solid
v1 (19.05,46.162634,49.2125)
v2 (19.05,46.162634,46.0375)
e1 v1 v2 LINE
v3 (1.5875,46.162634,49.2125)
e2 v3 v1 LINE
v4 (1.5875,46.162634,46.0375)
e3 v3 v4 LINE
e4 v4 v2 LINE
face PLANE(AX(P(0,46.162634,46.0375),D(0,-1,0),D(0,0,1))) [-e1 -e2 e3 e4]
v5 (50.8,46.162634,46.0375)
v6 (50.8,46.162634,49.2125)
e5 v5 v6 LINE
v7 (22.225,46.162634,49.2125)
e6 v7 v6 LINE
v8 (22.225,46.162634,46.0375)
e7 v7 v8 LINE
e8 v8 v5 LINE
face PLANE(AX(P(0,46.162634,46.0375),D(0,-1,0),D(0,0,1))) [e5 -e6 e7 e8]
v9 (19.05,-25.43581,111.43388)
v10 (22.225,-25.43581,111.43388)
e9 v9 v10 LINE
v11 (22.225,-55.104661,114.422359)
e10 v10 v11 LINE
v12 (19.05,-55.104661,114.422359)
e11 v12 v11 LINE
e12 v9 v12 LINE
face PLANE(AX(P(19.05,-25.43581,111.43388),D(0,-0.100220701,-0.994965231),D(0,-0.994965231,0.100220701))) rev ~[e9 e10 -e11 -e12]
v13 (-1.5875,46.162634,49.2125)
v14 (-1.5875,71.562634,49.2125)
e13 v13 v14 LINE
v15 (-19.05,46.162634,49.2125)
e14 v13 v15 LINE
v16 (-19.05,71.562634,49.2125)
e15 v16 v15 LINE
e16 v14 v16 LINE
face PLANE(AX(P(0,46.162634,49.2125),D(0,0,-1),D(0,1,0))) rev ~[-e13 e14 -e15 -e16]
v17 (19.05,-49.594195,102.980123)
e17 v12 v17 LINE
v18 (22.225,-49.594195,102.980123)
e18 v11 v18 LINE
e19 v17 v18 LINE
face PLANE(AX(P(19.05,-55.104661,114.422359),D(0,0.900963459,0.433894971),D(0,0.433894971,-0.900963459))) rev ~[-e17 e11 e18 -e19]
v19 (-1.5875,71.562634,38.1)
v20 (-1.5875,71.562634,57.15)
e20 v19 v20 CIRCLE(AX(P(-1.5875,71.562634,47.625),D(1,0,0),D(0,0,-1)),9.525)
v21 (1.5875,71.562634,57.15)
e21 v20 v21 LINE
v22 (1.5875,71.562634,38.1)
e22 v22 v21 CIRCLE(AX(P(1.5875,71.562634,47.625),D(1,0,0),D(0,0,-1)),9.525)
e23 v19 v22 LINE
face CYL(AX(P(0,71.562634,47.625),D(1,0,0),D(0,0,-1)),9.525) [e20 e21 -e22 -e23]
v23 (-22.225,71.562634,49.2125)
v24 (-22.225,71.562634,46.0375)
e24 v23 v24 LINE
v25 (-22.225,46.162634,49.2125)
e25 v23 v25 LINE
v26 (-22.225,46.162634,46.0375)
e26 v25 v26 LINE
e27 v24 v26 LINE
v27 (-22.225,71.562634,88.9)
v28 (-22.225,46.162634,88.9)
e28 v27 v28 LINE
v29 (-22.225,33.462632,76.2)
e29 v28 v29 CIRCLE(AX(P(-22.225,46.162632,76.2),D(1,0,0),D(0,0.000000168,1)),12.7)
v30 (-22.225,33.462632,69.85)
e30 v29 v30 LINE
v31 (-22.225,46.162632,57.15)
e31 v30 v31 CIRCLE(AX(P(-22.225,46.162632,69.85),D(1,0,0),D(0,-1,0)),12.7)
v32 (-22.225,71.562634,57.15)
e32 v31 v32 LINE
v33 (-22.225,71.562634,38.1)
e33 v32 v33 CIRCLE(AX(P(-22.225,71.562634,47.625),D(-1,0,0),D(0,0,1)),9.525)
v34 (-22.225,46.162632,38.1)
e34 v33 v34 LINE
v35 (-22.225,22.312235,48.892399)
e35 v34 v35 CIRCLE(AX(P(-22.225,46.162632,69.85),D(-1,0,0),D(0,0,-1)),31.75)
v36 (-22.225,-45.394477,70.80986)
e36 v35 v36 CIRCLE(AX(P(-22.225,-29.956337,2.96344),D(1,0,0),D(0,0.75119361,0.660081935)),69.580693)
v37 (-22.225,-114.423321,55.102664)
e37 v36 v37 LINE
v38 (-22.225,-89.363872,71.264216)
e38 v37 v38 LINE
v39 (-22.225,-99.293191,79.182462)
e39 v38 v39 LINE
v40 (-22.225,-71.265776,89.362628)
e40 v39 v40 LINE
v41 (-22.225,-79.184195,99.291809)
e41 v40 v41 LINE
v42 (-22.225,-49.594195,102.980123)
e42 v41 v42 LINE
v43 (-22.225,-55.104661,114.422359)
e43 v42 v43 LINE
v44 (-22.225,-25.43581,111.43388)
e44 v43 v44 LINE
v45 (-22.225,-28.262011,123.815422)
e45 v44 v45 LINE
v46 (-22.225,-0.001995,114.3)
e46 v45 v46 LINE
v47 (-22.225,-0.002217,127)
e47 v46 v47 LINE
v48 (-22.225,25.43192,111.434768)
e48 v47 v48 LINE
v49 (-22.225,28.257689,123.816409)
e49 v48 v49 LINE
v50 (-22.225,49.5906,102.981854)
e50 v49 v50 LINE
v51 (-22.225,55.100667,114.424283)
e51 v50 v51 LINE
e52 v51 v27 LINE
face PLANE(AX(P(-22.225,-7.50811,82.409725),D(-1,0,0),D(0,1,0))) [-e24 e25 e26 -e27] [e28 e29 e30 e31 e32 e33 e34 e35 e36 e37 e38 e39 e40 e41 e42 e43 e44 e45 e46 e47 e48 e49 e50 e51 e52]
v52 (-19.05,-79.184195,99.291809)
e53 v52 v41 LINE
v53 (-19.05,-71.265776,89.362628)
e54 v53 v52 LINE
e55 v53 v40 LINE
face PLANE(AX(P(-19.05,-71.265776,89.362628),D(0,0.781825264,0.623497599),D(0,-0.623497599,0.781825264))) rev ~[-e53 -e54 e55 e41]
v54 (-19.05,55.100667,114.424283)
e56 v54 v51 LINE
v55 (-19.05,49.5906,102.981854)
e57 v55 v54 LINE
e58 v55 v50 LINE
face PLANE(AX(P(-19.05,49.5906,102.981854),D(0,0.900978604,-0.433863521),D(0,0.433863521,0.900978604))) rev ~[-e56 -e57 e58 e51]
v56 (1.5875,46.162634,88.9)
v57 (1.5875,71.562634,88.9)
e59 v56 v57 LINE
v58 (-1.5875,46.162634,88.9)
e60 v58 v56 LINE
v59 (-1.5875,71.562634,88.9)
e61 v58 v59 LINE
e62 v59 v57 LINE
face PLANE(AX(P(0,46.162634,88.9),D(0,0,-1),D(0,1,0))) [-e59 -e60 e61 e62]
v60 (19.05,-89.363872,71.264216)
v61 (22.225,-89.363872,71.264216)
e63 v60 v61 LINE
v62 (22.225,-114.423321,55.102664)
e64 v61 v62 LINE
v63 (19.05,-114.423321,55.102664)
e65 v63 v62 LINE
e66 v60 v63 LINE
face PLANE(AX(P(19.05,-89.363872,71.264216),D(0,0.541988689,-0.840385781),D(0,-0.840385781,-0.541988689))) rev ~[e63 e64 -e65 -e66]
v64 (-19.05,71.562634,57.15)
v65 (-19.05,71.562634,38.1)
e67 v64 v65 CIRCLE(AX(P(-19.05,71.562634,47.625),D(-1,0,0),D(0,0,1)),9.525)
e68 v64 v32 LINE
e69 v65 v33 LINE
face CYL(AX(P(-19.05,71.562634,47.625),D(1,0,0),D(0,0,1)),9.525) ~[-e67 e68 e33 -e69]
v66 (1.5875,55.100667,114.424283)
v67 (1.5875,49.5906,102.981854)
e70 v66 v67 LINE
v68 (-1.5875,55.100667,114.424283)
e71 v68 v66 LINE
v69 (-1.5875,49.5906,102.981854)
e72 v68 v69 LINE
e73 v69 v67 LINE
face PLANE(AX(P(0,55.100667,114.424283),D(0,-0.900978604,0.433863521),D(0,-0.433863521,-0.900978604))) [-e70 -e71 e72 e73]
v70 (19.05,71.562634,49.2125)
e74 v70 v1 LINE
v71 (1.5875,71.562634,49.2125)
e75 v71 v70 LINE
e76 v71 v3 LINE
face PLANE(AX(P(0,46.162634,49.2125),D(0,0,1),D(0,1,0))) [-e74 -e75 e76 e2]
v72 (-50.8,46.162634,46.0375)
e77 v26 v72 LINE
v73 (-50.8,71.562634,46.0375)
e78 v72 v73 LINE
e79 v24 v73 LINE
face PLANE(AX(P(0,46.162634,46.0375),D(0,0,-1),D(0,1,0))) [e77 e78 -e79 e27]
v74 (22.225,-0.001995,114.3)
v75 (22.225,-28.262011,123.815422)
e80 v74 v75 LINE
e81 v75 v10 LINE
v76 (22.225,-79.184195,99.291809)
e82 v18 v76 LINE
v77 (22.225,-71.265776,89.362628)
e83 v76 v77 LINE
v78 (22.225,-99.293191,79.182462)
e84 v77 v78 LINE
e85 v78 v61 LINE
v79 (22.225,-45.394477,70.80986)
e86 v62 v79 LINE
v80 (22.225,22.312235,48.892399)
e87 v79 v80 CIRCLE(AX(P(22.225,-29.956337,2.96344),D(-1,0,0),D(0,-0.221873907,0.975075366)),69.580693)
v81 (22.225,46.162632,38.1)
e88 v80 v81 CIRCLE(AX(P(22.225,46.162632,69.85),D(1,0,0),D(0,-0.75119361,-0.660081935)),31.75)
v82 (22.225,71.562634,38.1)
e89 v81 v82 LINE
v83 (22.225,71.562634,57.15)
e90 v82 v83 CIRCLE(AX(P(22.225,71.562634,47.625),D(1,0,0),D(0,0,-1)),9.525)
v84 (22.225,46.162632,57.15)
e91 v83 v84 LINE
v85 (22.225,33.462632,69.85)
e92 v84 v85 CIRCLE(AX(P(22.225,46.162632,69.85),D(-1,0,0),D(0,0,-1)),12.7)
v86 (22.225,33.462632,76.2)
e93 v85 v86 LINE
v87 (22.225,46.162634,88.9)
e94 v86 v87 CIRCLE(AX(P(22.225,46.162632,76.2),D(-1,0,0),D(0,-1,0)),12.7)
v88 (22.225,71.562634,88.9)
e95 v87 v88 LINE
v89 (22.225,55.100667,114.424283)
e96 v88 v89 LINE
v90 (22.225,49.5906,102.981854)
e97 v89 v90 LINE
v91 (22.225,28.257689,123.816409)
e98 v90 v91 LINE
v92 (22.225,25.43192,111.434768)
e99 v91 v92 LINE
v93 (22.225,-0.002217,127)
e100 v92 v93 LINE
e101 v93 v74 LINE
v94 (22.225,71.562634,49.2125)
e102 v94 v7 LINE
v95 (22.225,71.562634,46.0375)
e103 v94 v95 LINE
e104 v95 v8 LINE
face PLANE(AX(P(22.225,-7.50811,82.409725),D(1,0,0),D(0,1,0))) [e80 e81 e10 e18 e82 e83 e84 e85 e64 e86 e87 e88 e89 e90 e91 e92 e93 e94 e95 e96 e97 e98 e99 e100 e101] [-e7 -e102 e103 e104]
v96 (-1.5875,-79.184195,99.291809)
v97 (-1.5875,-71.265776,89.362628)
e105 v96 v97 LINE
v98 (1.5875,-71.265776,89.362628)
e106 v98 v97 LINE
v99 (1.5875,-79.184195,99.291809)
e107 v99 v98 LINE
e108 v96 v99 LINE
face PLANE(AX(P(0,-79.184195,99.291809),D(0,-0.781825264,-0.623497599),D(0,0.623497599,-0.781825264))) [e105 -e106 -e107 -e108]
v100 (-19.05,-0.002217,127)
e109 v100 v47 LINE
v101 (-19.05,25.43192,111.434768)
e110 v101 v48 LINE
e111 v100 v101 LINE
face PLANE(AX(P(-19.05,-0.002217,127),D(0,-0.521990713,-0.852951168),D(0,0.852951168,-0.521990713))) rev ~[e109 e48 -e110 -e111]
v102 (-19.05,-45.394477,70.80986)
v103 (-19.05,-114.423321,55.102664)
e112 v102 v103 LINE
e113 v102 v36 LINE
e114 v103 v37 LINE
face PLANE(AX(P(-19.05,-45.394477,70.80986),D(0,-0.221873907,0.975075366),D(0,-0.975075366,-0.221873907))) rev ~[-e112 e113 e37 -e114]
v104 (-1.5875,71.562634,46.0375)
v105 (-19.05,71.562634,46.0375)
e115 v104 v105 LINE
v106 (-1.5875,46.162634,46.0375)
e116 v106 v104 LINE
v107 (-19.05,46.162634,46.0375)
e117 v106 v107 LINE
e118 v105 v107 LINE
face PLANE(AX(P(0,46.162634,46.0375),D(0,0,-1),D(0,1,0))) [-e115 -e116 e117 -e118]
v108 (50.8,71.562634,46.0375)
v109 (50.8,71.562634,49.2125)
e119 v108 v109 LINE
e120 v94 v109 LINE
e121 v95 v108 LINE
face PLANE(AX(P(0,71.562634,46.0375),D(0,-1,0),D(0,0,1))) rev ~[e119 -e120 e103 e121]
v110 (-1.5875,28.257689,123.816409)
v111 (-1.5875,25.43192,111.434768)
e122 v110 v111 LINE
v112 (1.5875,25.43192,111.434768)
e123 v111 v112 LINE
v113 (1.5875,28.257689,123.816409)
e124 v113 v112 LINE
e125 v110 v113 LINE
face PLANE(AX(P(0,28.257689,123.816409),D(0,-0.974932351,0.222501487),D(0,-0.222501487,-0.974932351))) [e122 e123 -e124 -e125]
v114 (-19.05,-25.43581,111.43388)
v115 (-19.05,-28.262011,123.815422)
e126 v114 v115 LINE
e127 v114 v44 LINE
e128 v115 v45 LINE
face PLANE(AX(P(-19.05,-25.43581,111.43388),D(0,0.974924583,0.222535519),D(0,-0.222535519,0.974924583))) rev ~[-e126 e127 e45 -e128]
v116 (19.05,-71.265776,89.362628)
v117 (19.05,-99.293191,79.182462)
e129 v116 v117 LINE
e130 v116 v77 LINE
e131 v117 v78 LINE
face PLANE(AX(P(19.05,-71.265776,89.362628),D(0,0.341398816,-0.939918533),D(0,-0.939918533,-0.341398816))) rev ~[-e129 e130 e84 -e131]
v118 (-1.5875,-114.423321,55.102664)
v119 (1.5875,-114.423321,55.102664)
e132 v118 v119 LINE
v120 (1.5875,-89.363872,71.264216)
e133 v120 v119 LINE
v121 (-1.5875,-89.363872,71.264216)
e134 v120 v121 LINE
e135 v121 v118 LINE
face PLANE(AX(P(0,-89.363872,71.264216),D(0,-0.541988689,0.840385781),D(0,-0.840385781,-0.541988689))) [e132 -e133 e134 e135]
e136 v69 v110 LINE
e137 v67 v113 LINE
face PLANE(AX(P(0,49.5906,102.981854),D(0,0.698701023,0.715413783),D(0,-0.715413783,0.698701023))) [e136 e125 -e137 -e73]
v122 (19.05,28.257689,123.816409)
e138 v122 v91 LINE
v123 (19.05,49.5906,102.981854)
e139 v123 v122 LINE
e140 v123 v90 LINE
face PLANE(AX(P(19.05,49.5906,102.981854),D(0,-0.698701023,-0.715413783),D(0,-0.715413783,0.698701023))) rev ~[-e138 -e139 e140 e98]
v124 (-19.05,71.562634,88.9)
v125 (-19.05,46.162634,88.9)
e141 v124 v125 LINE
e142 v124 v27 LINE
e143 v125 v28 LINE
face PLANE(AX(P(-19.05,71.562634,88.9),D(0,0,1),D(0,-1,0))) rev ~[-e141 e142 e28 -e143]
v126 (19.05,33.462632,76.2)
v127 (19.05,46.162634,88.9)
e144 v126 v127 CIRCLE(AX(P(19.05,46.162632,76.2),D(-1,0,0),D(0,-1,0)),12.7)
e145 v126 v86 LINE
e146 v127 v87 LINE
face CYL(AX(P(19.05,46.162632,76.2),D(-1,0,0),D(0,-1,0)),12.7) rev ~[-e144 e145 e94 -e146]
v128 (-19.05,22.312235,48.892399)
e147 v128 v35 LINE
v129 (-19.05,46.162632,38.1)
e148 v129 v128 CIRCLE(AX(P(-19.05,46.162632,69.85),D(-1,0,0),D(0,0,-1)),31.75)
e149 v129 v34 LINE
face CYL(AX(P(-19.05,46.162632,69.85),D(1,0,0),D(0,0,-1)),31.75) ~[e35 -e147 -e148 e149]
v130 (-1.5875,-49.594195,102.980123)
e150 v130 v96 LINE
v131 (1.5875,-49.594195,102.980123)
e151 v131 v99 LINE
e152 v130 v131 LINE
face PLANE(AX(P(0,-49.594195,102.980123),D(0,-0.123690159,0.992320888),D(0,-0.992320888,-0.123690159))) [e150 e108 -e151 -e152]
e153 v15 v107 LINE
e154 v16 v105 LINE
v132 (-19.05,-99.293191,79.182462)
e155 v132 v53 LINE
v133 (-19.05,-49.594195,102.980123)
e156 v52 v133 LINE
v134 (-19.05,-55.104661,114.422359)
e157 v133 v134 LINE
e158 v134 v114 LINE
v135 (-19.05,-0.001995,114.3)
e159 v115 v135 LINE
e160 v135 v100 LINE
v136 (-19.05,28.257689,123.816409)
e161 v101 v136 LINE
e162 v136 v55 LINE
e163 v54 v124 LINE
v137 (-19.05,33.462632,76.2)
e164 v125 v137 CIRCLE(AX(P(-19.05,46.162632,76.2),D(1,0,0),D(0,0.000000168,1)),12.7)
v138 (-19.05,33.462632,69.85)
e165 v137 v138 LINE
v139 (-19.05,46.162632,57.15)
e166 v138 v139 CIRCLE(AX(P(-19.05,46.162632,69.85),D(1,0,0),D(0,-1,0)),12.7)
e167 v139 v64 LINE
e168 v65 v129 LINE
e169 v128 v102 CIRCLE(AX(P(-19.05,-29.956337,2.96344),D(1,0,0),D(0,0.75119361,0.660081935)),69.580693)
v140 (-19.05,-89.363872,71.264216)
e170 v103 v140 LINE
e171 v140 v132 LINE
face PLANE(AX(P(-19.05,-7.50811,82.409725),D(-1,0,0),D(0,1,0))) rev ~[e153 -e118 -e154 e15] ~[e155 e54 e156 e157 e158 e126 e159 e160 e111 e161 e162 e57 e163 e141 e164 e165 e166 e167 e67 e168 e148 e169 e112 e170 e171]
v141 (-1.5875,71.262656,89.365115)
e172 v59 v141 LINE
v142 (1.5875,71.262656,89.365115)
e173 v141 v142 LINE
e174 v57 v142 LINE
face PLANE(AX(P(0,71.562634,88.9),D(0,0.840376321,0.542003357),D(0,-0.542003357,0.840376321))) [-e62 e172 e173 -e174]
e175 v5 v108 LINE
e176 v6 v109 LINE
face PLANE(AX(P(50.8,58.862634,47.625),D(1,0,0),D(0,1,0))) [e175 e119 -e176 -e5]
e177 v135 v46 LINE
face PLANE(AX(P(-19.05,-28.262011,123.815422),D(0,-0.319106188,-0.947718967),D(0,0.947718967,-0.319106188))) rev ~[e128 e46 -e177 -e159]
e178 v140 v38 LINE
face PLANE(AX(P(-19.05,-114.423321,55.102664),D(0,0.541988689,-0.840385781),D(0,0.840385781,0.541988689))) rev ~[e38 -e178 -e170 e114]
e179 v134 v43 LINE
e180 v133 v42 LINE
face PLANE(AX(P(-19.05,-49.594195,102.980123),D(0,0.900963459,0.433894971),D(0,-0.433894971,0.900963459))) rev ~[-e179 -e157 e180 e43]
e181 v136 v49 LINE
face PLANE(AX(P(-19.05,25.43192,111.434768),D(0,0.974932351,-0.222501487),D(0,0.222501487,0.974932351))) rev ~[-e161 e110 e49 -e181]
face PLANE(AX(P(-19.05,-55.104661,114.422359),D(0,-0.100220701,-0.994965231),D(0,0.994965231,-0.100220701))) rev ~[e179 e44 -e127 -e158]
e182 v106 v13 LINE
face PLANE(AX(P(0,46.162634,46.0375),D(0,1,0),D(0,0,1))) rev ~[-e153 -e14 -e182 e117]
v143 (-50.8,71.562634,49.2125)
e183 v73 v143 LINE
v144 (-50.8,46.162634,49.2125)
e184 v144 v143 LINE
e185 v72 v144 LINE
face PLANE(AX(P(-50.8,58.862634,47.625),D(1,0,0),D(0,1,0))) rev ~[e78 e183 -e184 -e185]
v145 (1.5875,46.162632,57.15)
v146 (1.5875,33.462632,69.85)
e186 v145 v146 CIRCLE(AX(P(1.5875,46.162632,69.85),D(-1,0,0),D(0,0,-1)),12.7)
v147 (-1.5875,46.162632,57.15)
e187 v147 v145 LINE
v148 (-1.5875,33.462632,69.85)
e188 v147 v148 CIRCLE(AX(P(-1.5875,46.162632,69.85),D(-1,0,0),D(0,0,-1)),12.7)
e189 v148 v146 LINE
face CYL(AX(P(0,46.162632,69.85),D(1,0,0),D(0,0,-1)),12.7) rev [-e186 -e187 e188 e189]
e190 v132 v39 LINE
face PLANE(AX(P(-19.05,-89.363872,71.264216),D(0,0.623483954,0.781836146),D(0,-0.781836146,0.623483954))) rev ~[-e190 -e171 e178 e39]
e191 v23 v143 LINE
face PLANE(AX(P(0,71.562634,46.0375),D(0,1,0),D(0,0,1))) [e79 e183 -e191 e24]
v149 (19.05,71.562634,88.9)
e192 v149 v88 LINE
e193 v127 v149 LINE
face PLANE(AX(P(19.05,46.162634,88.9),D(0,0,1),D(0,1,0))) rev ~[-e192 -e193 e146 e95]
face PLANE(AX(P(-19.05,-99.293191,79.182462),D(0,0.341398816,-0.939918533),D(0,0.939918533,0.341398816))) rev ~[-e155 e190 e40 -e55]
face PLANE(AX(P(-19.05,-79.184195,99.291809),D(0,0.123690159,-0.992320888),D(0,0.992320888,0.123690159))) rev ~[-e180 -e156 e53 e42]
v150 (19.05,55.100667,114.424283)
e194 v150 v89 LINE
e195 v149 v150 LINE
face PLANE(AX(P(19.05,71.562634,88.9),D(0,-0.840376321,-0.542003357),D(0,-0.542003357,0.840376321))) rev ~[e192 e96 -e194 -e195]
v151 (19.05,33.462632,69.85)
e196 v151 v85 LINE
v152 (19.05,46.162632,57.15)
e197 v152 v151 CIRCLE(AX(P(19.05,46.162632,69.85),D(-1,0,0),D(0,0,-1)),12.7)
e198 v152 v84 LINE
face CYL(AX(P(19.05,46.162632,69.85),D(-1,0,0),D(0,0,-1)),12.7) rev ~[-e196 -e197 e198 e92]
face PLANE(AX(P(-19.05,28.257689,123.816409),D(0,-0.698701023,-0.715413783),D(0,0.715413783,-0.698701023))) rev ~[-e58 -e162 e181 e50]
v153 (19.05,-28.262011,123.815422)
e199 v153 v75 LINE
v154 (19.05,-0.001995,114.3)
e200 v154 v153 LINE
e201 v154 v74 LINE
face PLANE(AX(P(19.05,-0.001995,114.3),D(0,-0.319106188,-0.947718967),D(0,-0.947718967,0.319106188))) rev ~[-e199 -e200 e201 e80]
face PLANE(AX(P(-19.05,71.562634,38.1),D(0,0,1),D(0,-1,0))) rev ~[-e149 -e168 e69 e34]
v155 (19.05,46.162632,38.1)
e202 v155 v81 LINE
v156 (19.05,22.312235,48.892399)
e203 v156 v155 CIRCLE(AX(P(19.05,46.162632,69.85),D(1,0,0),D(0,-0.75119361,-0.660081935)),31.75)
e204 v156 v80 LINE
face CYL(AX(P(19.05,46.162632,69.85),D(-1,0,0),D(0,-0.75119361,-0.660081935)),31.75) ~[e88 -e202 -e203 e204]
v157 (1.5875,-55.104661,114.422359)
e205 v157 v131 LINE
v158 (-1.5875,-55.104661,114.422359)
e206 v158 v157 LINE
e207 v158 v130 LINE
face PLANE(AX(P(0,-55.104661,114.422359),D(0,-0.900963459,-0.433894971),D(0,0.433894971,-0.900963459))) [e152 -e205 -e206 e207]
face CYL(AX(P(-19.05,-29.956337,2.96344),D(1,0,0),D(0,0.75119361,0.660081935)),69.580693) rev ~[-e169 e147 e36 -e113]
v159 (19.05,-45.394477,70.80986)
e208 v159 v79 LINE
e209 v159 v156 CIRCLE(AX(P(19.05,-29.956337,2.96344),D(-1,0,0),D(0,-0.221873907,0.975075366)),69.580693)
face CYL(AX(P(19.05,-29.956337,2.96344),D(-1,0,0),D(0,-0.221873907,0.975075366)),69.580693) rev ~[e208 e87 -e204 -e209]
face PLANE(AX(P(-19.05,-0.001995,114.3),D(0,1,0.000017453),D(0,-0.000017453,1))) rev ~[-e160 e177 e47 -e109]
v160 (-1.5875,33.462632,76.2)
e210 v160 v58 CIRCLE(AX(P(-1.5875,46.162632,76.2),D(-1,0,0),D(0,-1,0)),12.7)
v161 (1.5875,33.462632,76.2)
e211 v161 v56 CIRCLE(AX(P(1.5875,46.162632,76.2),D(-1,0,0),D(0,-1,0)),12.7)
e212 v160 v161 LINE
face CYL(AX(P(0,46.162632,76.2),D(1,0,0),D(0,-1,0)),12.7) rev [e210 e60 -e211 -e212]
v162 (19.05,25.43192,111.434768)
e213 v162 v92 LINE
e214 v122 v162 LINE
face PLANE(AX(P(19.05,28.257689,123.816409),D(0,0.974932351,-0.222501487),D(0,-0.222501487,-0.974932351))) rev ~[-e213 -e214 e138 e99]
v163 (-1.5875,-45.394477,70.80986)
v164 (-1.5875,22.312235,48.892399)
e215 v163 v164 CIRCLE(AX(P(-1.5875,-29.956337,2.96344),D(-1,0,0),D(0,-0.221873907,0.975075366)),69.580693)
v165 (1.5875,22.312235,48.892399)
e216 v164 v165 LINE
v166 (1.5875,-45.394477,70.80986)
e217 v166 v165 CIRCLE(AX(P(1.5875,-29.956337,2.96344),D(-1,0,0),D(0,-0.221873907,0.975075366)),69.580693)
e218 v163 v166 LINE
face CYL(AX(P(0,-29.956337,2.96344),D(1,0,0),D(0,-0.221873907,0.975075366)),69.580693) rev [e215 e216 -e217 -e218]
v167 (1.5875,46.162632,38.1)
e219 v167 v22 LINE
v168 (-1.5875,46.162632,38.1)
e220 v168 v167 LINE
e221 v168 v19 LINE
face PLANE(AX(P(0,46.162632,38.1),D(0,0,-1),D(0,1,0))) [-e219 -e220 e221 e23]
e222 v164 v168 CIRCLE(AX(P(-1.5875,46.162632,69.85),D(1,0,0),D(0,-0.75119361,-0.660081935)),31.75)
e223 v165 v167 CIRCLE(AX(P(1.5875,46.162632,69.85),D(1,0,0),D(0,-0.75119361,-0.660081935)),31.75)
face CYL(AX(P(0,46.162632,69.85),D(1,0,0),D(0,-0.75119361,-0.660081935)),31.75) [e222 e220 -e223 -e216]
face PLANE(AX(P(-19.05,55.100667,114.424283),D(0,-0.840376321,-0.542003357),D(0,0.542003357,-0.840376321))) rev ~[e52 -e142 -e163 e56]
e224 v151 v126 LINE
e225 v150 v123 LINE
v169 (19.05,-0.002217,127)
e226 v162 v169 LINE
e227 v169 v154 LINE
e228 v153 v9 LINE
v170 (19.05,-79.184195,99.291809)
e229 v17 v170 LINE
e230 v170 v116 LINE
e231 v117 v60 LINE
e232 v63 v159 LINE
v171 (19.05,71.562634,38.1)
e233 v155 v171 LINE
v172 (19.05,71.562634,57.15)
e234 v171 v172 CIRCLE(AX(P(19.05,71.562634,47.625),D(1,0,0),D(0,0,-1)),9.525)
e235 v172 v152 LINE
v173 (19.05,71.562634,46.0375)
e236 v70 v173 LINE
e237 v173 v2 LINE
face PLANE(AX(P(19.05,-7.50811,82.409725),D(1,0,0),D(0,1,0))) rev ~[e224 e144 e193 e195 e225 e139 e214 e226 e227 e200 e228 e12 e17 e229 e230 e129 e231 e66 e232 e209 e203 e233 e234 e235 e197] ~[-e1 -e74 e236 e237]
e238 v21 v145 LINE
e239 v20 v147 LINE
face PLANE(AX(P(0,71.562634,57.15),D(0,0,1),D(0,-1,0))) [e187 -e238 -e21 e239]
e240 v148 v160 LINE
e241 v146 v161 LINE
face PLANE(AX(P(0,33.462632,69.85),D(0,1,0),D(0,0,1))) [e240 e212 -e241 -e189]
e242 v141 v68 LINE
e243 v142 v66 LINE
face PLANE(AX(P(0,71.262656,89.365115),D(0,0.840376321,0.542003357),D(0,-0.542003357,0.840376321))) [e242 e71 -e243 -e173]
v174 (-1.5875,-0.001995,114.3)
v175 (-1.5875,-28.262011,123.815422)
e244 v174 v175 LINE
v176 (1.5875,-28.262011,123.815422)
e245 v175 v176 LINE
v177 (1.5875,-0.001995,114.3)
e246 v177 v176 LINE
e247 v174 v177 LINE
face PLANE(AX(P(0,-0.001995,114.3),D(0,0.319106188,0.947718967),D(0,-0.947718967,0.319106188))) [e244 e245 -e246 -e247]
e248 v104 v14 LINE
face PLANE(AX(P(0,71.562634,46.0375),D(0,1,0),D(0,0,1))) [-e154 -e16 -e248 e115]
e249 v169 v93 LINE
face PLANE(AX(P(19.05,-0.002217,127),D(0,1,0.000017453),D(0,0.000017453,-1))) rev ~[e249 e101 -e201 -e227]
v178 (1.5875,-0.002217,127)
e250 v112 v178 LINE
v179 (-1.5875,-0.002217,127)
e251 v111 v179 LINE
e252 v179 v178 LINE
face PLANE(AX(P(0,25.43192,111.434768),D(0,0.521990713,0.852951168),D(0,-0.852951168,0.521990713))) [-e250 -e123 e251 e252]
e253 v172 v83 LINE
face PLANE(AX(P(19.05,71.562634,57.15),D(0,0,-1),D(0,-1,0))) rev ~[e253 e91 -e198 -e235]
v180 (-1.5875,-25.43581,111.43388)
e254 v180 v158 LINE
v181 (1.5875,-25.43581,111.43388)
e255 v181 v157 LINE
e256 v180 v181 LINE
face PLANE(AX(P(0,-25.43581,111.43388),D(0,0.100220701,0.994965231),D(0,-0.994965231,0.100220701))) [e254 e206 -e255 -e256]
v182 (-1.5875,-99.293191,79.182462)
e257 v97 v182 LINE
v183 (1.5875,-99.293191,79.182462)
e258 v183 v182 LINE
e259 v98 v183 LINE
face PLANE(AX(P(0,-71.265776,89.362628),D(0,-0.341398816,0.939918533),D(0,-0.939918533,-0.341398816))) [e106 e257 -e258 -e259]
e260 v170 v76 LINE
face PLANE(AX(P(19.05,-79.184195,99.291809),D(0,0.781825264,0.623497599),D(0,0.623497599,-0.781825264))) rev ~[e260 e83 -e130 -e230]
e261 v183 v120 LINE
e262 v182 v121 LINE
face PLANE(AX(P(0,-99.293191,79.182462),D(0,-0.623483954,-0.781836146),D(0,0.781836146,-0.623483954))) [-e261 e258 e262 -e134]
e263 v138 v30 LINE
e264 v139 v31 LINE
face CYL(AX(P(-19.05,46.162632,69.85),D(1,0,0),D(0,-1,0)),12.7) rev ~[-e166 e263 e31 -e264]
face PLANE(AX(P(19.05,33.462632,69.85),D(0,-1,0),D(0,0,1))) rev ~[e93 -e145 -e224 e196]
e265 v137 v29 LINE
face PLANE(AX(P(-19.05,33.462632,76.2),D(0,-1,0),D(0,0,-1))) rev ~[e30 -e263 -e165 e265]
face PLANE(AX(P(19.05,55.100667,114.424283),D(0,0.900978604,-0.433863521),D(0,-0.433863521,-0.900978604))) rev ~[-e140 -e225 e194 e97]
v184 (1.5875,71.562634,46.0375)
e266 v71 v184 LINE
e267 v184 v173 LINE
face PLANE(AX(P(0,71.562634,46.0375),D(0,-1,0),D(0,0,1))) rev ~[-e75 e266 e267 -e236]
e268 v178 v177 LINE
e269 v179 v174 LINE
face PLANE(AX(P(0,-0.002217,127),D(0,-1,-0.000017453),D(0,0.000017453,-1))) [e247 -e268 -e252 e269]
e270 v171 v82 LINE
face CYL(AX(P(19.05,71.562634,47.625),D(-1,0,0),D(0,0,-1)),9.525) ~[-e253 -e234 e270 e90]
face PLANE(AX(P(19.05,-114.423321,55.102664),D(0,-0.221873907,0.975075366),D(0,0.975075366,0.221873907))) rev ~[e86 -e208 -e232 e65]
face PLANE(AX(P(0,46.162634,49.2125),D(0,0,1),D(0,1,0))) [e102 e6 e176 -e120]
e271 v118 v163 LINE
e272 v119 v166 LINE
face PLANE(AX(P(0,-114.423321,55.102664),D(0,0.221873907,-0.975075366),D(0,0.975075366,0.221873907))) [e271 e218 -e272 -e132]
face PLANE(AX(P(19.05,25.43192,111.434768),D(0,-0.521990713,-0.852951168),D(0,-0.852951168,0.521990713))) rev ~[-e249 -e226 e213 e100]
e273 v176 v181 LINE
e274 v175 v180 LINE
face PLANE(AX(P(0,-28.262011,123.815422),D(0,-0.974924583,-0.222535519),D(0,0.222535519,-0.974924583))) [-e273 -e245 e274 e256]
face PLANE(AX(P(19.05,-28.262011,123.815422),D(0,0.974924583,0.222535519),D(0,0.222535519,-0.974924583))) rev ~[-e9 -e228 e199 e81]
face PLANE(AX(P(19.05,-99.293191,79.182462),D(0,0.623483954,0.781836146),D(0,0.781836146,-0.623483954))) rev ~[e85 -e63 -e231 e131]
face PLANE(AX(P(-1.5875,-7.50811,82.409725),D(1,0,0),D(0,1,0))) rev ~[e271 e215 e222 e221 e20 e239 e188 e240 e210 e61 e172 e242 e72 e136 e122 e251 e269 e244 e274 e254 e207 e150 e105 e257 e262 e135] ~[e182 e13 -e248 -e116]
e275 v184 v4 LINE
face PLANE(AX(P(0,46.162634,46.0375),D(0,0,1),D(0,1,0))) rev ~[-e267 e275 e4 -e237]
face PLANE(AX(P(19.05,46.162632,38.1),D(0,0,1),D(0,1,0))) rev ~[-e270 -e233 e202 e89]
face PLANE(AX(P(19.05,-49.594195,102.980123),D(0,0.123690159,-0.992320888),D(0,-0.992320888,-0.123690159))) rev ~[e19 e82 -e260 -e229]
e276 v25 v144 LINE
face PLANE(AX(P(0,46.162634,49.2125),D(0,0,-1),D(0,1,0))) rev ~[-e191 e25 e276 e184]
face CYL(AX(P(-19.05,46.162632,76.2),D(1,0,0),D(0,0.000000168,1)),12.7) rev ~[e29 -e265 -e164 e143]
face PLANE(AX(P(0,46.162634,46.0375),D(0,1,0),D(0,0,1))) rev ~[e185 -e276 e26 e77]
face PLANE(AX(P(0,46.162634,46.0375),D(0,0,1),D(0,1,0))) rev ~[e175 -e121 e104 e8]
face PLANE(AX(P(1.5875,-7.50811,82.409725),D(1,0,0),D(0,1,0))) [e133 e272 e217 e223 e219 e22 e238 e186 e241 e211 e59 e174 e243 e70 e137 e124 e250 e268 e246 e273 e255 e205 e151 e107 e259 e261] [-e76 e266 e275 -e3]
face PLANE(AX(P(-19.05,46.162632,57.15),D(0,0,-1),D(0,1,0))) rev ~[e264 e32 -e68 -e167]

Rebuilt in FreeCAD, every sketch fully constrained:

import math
import FreeCAD as App
import Part
import Sketcher
Q = App.Units.Quantity


def add_polygon(sketch, points):
    """Adds a closed chain of lines whose ends are joined by coincident constraints."""
    first, n = sketch.GeometryCount, len(points)
    for a, b in zip(points, points[1:] + points[:1]):
        sketch.addGeometry(Part.LineSegment(App.Vector(*a, 0), App.Vector(*b, 0)), False)
    for i in range(n):
        sketch.addConstraint(Sketcher.Constraint("Coincident", first + i, 2, first + (i + 1) % n, 1))

doc = App.newDocument("Part")
params = doc.addObject("Spreadsheet::Sheet", "Params")
for row, (alias, value) in enumerate([
    ("sketch1_radius", "0.5 in"),
    ("sketch1_width", "1.0000001 in"),
    ("sketch1_radius2", "1.25 in"),
    ("sketch1_length", "0.5 in"),
    ("sketch1_height", "0.25 in"),
    ("pad1_length", "0.0625 in"),
    ("pad1_length2", "0.0625 in"),
    ("sketch2_radius", "0.5 in"),
    ("sketch2_width", "1.0000001 in"),
    ("sketch2_radius2", "1.25 in"),
    ("sketch2_length", "0.5 in"),
    ("sketch2_height", "0.25 in"),
    ("pad2_length", "0.125 in"),
    ("sketch3_radius", "0.5 in"),
    ("sketch3_radius2", "0.5 in"),
    ("sketch3_width", "1 in"),
    ("sketch3_width2", "1.0000001 in"),
    ("sketch3_width3", "1.0000001 in"),
    ("pad3_length", "0.125 in"),
    ("sketch4_width", "1 in"),
    ("sketch4_height", "0.125 in"),
    ("pad4_length", "2 in"),
    ("pad4_length2", "2 in"),
], start=1):
    params.set(f"A{row}", alias)
    params.set(f"B{row}", "=" + value)
    params.setAlias(f"B{row}", alias)

body = doc.addObject("PartDesign::Body", "Body")

# Sketch on YZ plane
sketch1 = doc.addObject("Sketcher::SketchObject", "Sketch")
body.addObject(sketch1)
sketch1.AttachmentSupport = (doc.YZ_Plane, [""])
sketch1.MapMode = "FlatFace"
sketch1.addGeometry([
    Part.LineSegment(App.Vector(-89.4, 71.3, 0), App.Vector(-114.4, 55.1, 0)),  # 0
    Part.LineSegment(App.Vector(-114.4, 55.1, 0), App.Vector(-45.4, 70.8, 0)),  # 1
    Part.ArcOfCircle(Part.Circle(App.Vector(-30, 3, 0), App.Vector(0, 0, 1), 69.6), math.radians(41), math.radians(103)),  # 2
    Part.ArcOfCircle(Part.Circle(App.Vector(46.2, 69.8, 0), App.Vector(0, 0, 1), 31.8), math.radians(-139), math.radians(-90)),  # 3
    Part.LineSegment(App.Vector(46.2, 38.1, 0), App.Vector(71.6, 38.1, 0)),  # 4
    Part.ArcOfCircle(Part.Circle(App.Vector(71.6, 47.6, 0), App.Vector(0, 0, 1), 9.5), math.radians(-90), math.radians(90)),  # 5
    Part.LineSegment(App.Vector(71.6, 57.1, 0), App.Vector(46.2, 57.1, 0)),  # 6
    Part.ArcOfCircle(Part.Circle(App.Vector(46.2, 69.8, 0), App.Vector(0, 0, 1), 12.7), math.radians(180), math.radians(270)),  # 7
    Part.LineSegment(App.Vector(33.5, 69.8, 0), App.Vector(33.5, 76.2, 0)),  # 8
    Part.ArcOfCircle(Part.Circle(App.Vector(46.2, 76.2, 0), App.Vector(0, 0, 1), 12.7), math.radians(90), math.radians(180)),  # 9
    Part.LineSegment(App.Vector(46.2, 88.9, 0), App.Vector(71.6, 88.9, 0)),  # 10
    Part.LineSegment(App.Vector(71.6, 88.9, 0), App.Vector(71.3, 89.4, 0)),  # 11
    Part.LineSegment(App.Vector(71.3, 89.4, 0), App.Vector(55.1, 114.4, 0)),  # 12
    Part.LineSegment(App.Vector(55.1, 114.4, 0), App.Vector(49.6, 103, 0)),  # 13
    Part.LineSegment(App.Vector(49.6, 103, 0), App.Vector(28.3, 123.8, 0)),  # 14
    Part.LineSegment(App.Vector(28.3, 123.8, 0), App.Vector(25.4, 111.4, 0)),  # 15
    Part.LineSegment(App.Vector(25.4, 111.4, 0), App.Vector(0, 127, 0)),  # 16
    Part.LineSegment(App.Vector(0, 127, 0), App.Vector(0, 114.3, 0)),  # 17
    Part.LineSegment(App.Vector(0, 114.3, 0), App.Vector(-28.3, 123.8, 0)),  # 18
    Part.LineSegment(App.Vector(-28.3, 123.8, 0), App.Vector(-25.4, 111.4, 0)),  # 19
    Part.LineSegment(App.Vector(-25.4, 111.4, 0), App.Vector(-55.1, 114.4, 0)),  # 20
    Part.LineSegment(App.Vector(-55.1, 114.4, 0), App.Vector(-49.6, 103, 0)),  # 21
    Part.LineSegment(App.Vector(-49.6, 103, 0), App.Vector(-79.2, 99.3, 0)),  # 22
    Part.LineSegment(App.Vector(-79.2, 99.3, 0), App.Vector(-71.3, 89.4, 0)),  # 23
    Part.LineSegment(App.Vector(-71.3, 89.4, 0), App.Vector(-99.3, 79.2, 0)),  # 24
    Part.LineSegment(App.Vector(-99.3, 79.2, 0), App.Vector(-89.4, 71.3, 0)),  # 25
], False)
sketch1.addConstraint([
    Sketcher.Constraint("Coincident", 0, 2, 1, 1),
    Sketcher.Constraint("Tangent", 1, 2, 2, 2),
    Sketcher.Constraint("Tangent", 2, 1, 3, 1),
    Sketcher.Constraint("Tangent", 3, 2, 4, 1),
    Sketcher.Constraint("Tangent", 4, 2, 5, 1),
    Sketcher.Constraint("Tangent", 5, 2, 6, 1),
    Sketcher.Constraint("Tangent", 6, 2, 7, 2),
    Sketcher.Constraint("Tangent", 7, 1, 8, 1),
    Sketcher.Constraint("Tangent", 8, 2, 9, 2),
    Sketcher.Constraint("Tangent", 9, 1, 10, 1),
    Sketcher.Constraint("Coincident", 10, 2, 11, 1),
    Sketcher.Constraint("Coincident", 11, 2, 12, 1),
    Sketcher.Constraint("Coincident", 12, 2, 13, 1),
    Sketcher.Constraint("Coincident", 13, 2, 14, 1),
    Sketcher.Constraint("Coincident", 14, 2, 15, 1),
    Sketcher.Constraint("Coincident", 15, 2, 16, 1),
    Sketcher.Constraint("Coincident", 16, 2, 17, 1),
    Sketcher.Constraint("Coincident", 17, 2, 18, 1),
    Sketcher.Constraint("Coincident", 18, 2, 19, 1),
    Sketcher.Constraint("Coincident", 19, 2, 20, 1),
    Sketcher.Constraint("Coincident", 20, 2, 21, 1),
    Sketcher.Constraint("Coincident", 21, 2, 22, 1),
    Sketcher.Constraint("Coincident", 22, 2, 23, 1),
    Sketcher.Constraint("Coincident", 23, 2, 24, 1),
    Sketcher.Constraint("Coincident", 24, 2, 25, 1),
    Sketcher.Constraint("Coincident", 25, 2, 0, 1),
    Sketcher.Constraint("Horizontal", 4),
    Sketcher.Constraint("Horizontal", 6),
    Sketcher.Constraint("Vertical", 8),
    Sketcher.Constraint("Horizontal", 10),
    Sketcher.Constraint("Coincident", 7, 3, 3, 3),
    Sketcher.Constraint("Equal", 7, 9),
    Sketcher.Constraint("Parallel", 11, 12),
    Sketcher.Constraint("Vertical", 5, 2, 10, 2),
    Sketcher.Constraint("Equal", 0, 12),
    Sketcher.Constraint("Equal", 12, 14),
    Sketcher.Constraint("Equal", 13, 15),
    Sketcher.Constraint("Equal", 14, 16),
    Sketcher.Constraint("Equal", 15, 17),
    Sketcher.Constraint("Equal", 16, 18),
    Sketcher.Constraint("Equal", 17, 19),
    Sketcher.Constraint("Equal", 18, 20),
    Sketcher.Constraint("Equal", 19, 21),
    Sketcher.Constraint("Equal", 20, 22),
    Sketcher.Constraint("Equal", 21, 23),
    Sketcher.Constraint("Equal", 22, 24),
    Sketcher.Constraint("Equal", 23, 25),
    Sketcher.Constraint("Radius", 7, Q("0.5 in")),
    Sketcher.Constraint("DistanceX", 4, 1, 4, 2, Q("1.0000001 in")),
    Sketcher.Constraint("Radius", 3, Q("1.25 in")),
    Sketcher.Constraint("DistanceY", -1, 1, 9, 3, Q("3 in")),
    Sketcher.Constraint("DistanceY", -1, 1, 16, 2, Q("5 in")),
    Sketcher.Constraint("Distance", 13, Q("0.5 in")),
    Sketcher.Constraint("DistanceY", 8, 1, 8, 2, Q("0.25 in")),
    Sketcher.Constraint("Radius", 2, 69.580692),
    Sketcher.Constraint("DistanceY", -1, 1, 2, 1, 48.892399),
    Sketcher.Constraint("DistanceX", -1, 1, 13, 2, 49.5906),
    Sketcher.Constraint("DistanceX", 18, 2, 14, 2, 56.5197),
    Sketcher.Constraint("DistanceX", 18, 2, 19, 2, 2.826201),
    Sketcher.Constraint("DistanceY", 1, 2, 20, 2, 43.6125),
    Sketcher.Constraint("DistanceY", 21, 2, 18, 2, 20.835299),
    Sketcher.Constraint("DistanceX", 21, 2, 17, 2, 49.5922),
    Sketcher.Constraint("DistanceX", 22, 2, 21, 2, 29.59),
    Sketcher.Constraint("DistanceX", 23, 2, 1, 2, 25.871298),
    Sketcher.Constraint("Distance", 11, 0.553461),
    Sketcher.Constraint("DistanceX", -1, 1, 3, 3, 46.162632),
    Sketcher.Constraint("DistanceX", 0, 2, -1, 1, 114.423321),
    Sketcher.Constraint("DistanceY", -1, 1, 1, 2, 70.80986),
    Sketcher.Constraint("DistanceX", -1, 1, 14, 2, 28.257689),
    Sketcher.Constraint("DistanceY", -1, 1, 14, 2, 123.816409),
    Sketcher.Constraint("DistanceX", -1, 1, 15, 2, 25.43192),
    Sketcher.Constraint("DistanceY", -1, 1, 19, 2, 111.43388),
    Sketcher.Constraint("DistanceX", 24, 2, -1, 1, 99.293191),
])
sketch1.setExpression("Constraints[47]", "Params.sketch1_radius")
sketch1.setExpression("Constraints[48]", "Params.sketch1_width")
sketch1.setExpression("Constraints[49]", "Params.sketch1_radius2")
sketch1.setExpression("Constraints[52]", "Params.sketch1_length")
sketch1.setExpression("Constraints[53]", "Params.sketch1_height")
pad1 = doc.addObject("PartDesign::Pad", "Pad")
body.addObject(pad1)
pad1.Profile = sketch1
pad1.Type = "TwoLengths"
pad1.setExpression("Length", "Params.pad1_length")
pad1.setExpression("Length2", "Params.pad1_length2")
body2 = doc.addObject("PartDesign::Body", "Body001")

# Sketch on YZ plane
sketch2 = doc.addObject("Sketcher::SketchObject", "Sketch001")
body2.addObject(sketch2)
sketch2.AttachmentSupport = (doc.getObject("YZ_Plane001"), [""])
sketch2.MapMode = "FlatFace"
sketch2.AttachmentOffset = App.Placement(App.Vector(0, 0, 0.75 * 25.4), App.Rotation())
sketch2.addGeometry([
    Part.LineSegment(App.Vector(-99, 79, 0), App.Vector(-89, 71, 0)),  # 0
    Part.LineSegment(App.Vector(-89, 71, 0), App.Vector(-114, 55, 0)),  # 1
    Part.LineSegment(App.Vector(-114, 55, 0), App.Vector(-45, 71, 0)),  # 2
    Part.ArcOfCircle(Part.Circle(App.Vector(-30, 3, 0), App.Vector(0, 0, 1), 70), math.radians(41), math.radians(103)),  # 3
    Part.ArcOfCircle(Part.Circle(App.Vector(46, 70, 0), App.Vector(0, 0, 1), 32), math.radians(-139), math.radians(-90)),  # 4
    Part.LineSegment(App.Vector(46, 38, 0), App.Vector(72, 38, 0)),  # 5
    Part.ArcOfCircle(Part.Circle(App.Vector(72, 48, 0), App.Vector(0, 0, 1), 10), math.radians(-90), math.radians(90)),  # 6
    Part.LineSegment(App.Vector(72, 57, 0), App.Vector(46, 57, 0)),  # 7
    Part.ArcOfCircle(Part.Circle(App.Vector(46, 70, 0), App.Vector(0, 0, 1), 13), math.radians(180), math.radians(270)),  # 8
    Part.LineSegment(App.Vector(33, 70, 0), App.Vector(33, 76, 0)),  # 9
    Part.ArcOfCircle(Part.Circle(App.Vector(46, 76, 0), App.Vector(0, 0, 1), 13), math.radians(90), math.radians(180)),  # 10
    Part.LineSegment(App.Vector(46, 89, 0), App.Vector(72, 89, 0)),  # 11
    Part.LineSegment(App.Vector(72, 89, 0), App.Vector(55, 114, 0)),  # 12
    Part.LineSegment(App.Vector(55, 114, 0), App.Vector(50, 103, 0)),  # 13
    Part.LineSegment(App.Vector(50, 103, 0), App.Vector(28, 124, 0)),  # 14
    Part.LineSegment(App.Vector(28, 124, 0), App.Vector(25, 111, 0)),  # 15
    Part.LineSegment(App.Vector(25, 111, 0), App.Vector(0, 127, 0)),  # 16
    Part.LineSegment(App.Vector(0, 127, 0), App.Vector(0, 114, 0)),  # 17
    Part.LineSegment(App.Vector(0, 114, 0), App.Vector(-28, 124, 0)),  # 18
    Part.LineSegment(App.Vector(-28, 124, 0), App.Vector(-25, 111, 0)),  # 19
    Part.LineSegment(App.Vector(-25, 111, 0), App.Vector(-55, 114, 0)),  # 20
    Part.LineSegment(App.Vector(-55, 114, 0), App.Vector(-50, 103, 0)),  # 21
    Part.LineSegment(App.Vector(-50, 103, 0), App.Vector(-79, 99, 0)),  # 22
    Part.LineSegment(App.Vector(-79, 99, 0), App.Vector(-71, 89, 0)),  # 23
    Part.LineSegment(App.Vector(-71, 89, 0), App.Vector(-99, 79, 0)),  # 24
], False)
sketch2.addConstraint([
    Sketcher.Constraint("Coincident", 0, 2, 1, 1),
    Sketcher.Constraint("Coincident", 1, 2, 2, 1),
    Sketcher.Constraint("Tangent", 2, 2, 3, 2),
    Sketcher.Constraint("Tangent", 3, 1, 4, 1),
    Sketcher.Constraint("Tangent", 4, 2, 5, 1),
    Sketcher.Constraint("Tangent", 5, 2, 6, 1),
    Sketcher.Constraint("Tangent", 6, 2, 7, 1),
    Sketcher.Constraint("Tangent", 7, 2, 8, 2),
    Sketcher.Constraint("Tangent", 8, 1, 9, 1),
    Sketcher.Constraint("Tangent", 9, 2, 10, 2),
    Sketcher.Constraint("Tangent", 10, 1, 11, 1),
    Sketcher.Constraint("Coincident", 11, 2, 12, 1),
    Sketcher.Constraint("Coincident", 12, 2, 13, 1),
    Sketcher.Constraint("Coincident", 13, 2, 14, 1),
    Sketcher.Constraint("Coincident", 14, 2, 15, 1),
    Sketcher.Constraint("Coincident", 15, 2, 16, 1),
    Sketcher.Constraint("Coincident", 16, 2, 17, 1),
    Sketcher.Constraint("Coincident", 17, 2, 18, 1),
    Sketcher.Constraint("Coincident", 18, 2, 19, 1),
    Sketcher.Constraint("Coincident", 19, 2, 20, 1),
    Sketcher.Constraint("Coincident", 20, 2, 21, 1),
    Sketcher.Constraint("Coincident", 21, 2, 22, 1),
    Sketcher.Constraint("Coincident", 22, 2, 23, 1),
    Sketcher.Constraint("Coincident", 23, 2, 24, 1),
    Sketcher.Constraint("Coincident", 24, 2, 0, 1),
    Sketcher.Constraint("Horizontal", 5),
    Sketcher.Constraint("Horizontal", 7),
    Sketcher.Constraint("Vertical", 9),
    Sketcher.Constraint("Horizontal", 11),
    Sketcher.Constraint("Coincident", 8, 3, 4, 3),
    Sketcher.Constraint("Equal", 8, 10),
    Sketcher.Constraint("Vertical", 6, 2, 11, 2),
    Sketcher.Constraint("Equal", 0, 13),
    Sketcher.Constraint("Equal", 1, 14),
    Sketcher.Constraint("Equal", 13, 15),
    Sketcher.Constraint("Equal", 14, 16),
    Sketcher.Constraint("Equal", 15, 17),
    Sketcher.Constraint("Equal", 16, 18),
    Sketcher.Constraint("Equal", 17, 19),
    Sketcher.Constraint("Equal", 18, 20),
    Sketcher.Constraint("Equal", 19, 21),
    Sketcher.Constraint("Equal", 20, 22),
    Sketcher.Constraint("Equal", 21, 23),
    Sketcher.Constraint("Equal", 22, 24),
    Sketcher.Constraint("Radius", 8, Q("0.5 in")),
    Sketcher.Constraint("DistanceX", 5, 1, 5, 2, Q("1.0000001 in")),
    Sketcher.Constraint("Radius", 4, Q("1.25 in")),
    Sketcher.Constraint("DistanceY", -1, 1, 10, 3, Q("3 in")),
    Sketcher.Constraint("DistanceY", -1, 1, 16, 2, Q("5 in")),
    Sketcher.Constraint("Distance", 0, Q("0.5 in")),
    Sketcher.Constraint("DistanceY", 9, 1, 9, 2, Q("0.25 in")),
    Sketcher.Constraint("Radius", 3, 69.580693),
    Sketcher.Constraint("DistanceY", -1, 1, 3, 1, 48.892399),
    Sketcher.Constraint("DistanceX", -1, 1, 13, 2, 49.5906),
    Sketcher.Constraint("DistanceX", 18, 2, 14, 2, 56.5197),
    Sketcher.Constraint("DistanceX", 18, 2, 19, 2, 2.826201),
    Sketcher.Constraint("DistanceY", 2, 2, 20, 2, 43.6125),
    Sketcher.Constraint("DistanceY", 21, 2, 18, 2, 20.835299),
    Sketcher.Constraint("DistanceX", 21, 2, 17, 2, 49.5922),
    Sketcher.Constraint("DistanceX", 22, 2, 21, 2, 29.59),
    Sketcher.Constraint("DistanceX", 23, 2, 2, 2, 25.871298),
    Sketcher.Constraint("DistanceX", -1, 1, 4, 3, 46.162632),
    Sketcher.Constraint("DistanceX", 0, 2, -1, 1, 89.363872),
    Sketcher.Constraint("DistanceX", 1, 2, -1, 1, 114.423321),
    Sketcher.Constraint("DistanceY", -1, 1, 2, 2, 70.80986),
    Sketcher.Constraint("DistanceX", -1, 1, 14, 2, 28.257689),
    Sketcher.Constraint("DistanceY", -1, 1, 14, 2, 123.816409),
    Sketcher.Constraint("DistanceX", -1, 1, 15, 2, 25.43192),
    Sketcher.Constraint("DistanceY", -1, 1, 19, 2, 111.43388),
    Sketcher.Constraint("DistanceY", 13, 2, 12, 2, 11.442428),
])
sketch2.setExpression("Constraints[44]", "Params.sketch2_radius")
sketch2.setExpression("Constraints[45]", "Params.sketch2_width")
sketch2.setExpression("Constraints[46]", "Params.sketch2_radius2")
sketch2.setExpression("Constraints[49]", "Params.sketch2_length")
sketch2.setExpression("Constraints[50]", "Params.sketch2_height")
pad2 = doc.addObject("PartDesign::Pad", "Pad001")
body2.addObject(pad2)
pad2.Profile = sketch2
pad2.setExpression("Length", "Params.pad2_length")
body3 = doc.addObject("PartDesign::Body", "Body002")

# Sketch on YZ plane
sketch3 = doc.addObject("Sketcher::SketchObject", "Sketch002")
body3.addObject(sketch3)
sketch3.AttachmentSupport = (doc.getObject("YZ_Plane002"), [""])
sketch3.MapMode = "FlatFace"
sketch3.AttachmentOffset = App.Placement(App.Vector(0, 0, -0.75 * 25.4), App.Rotation())
sketch3.addGeometry([
    Part.LineSegment(App.Vector(-89.363872, 71.264216, 0), App.Vector(-99.293191, 79.182462, 0)),  # 0
    Part.LineSegment(App.Vector(-99.293191, 79.182462, 0), App.Vector(-71.265776, 89.362628, 0)),  # 1
    Part.LineSegment(App.Vector(-71.265776, 89.362628, 0), App.Vector(-79.184195, 99.291809, 0)),  # 2
    Part.LineSegment(App.Vector(-79.184195, 99.291809, 0), App.Vector(-49.594195, 102.980123, 0)),  # 3
    Part.LineSegment(App.Vector(-49.594195, 102.980123, 0), App.Vector(-55.104661, 114.422359, 0)),  # 4
    Part.LineSegment(App.Vector(-55.104661, 114.422359, 0), App.Vector(-25.43581, 111.43388, 0)),  # 5
    Part.LineSegment(App.Vector(-25.43581, 111.43388, 0), App.Vector(-28.262011, 123.815422, 0)),  # 6
    Part.LineSegment(App.Vector(-28.262011, 123.815422, 0), App.Vector(-0.001995, 114.3, 0)),  # 7
    Part.LineSegment(App.Vector(-0.001995, 114.3, 0), App.Vector(-0.002217, 127, 0)),  # 8
    Part.LineSegment(App.Vector(-0.002217, 127, 0), App.Vector(25.43192, 111.434768, 0)),  # 9
    Part.LineSegment(App.Vector(25.43192, 111.434768, 0), App.Vector(28.257689, 123.816409, 0)),  # 10
    Part.LineSegment(App.Vector(28.257689, 123.816409, 0), App.Vector(49.5906, 102.981854, 0)),  # 11
    Part.LineSegment(App.Vector(49.5906, 102.981854, 0), App.Vector(55.100667, 114.424283, 0)),  # 12
    Part.LineSegment(App.Vector(55.100667, 114.424283, 0), App.Vector(71.562634, 88.9, 0)),  # 13
    Part.LineSegment(App.Vector(71.562634, 88.9, 0), App.Vector(46.162634, 88.9, 0)),  # 14
    Part.ArcOfCircle(Part.Circle(App.Vector(46.162632, 76.2, 0), App.Vector(0, 0, 1), 12.7), math.radians(89.99999), math.radians(180)),  # 15
    Part.LineSegment(App.Vector(33.462632, 76.2, 0), App.Vector(33.462632, 69.85, 0)),  # 16
    Part.ArcOfCircle(Part.Circle(App.Vector(46.162632, 69.85, 0), App.Vector(0, 0, 1), 12.7), math.radians(180), math.radians(270)),  # 17
    Part.LineSegment(App.Vector(46.162632, 57.15, 0), App.Vector(71.562634, 57.15, 0)),  # 18
    Part.ArcOfCircle(Part.Circle(App.Vector(71.562634, 47.625, 0), App.Vector(0, 0, 1), 9.525), math.radians(-90), math.radians(90)),  # 19
    Part.LineSegment(App.Vector(71.562634, 38.1, 0), App.Vector(46.162632, 38.1, 0)),  # 20
    Part.ArcOfCircle(Part.Circle(App.Vector(46.162632, 69.85, 0), App.Vector(0, 0, 1), 31.75), math.radians(-138.693878), math.radians(-90)),  # 21
    Part.ArcOfCircle(Part.Circle(App.Vector(-29.956337, 2.96344, 0), App.Vector(0, 0, 1), 69.580693), math.radians(41.306122), math.radians(102.81912)),  # 22
    Part.LineSegment(App.Vector(-45.394477, 70.80986, 0), App.Vector(-114.423321, 55.102664, 0)),  # 23
    Part.LineSegment(App.Vector(-114.423321, 55.102664, 0), App.Vector(-89.363872, 71.264216, 0)),  # 24
], False)
sketch3.addConstraint([
    Sketcher.Constraint("Coincident", 0, 2, 1, 1),
    Sketcher.Constraint("Coincident", 1, 2, 2, 1),
    Sketcher.Constraint("Coincident", 2, 2, 3, 1),
    Sketcher.Constraint("Coincident", 3, 2, 4, 1),
    Sketcher.Constraint("Coincident", 4, 2, 5, 1),
    Sketcher.Constraint("Coincident", 5, 2, 6, 1),
    Sketcher.Constraint("Coincident", 6, 2, 7, 1),
    Sketcher.Constraint("Coincident", 7, 2, 8, 1),
    Sketcher.Constraint("Coincident", 8, 2, 9, 1),
    Sketcher.Constraint("Coincident", 9, 2, 10, 1),
    Sketcher.Constraint("Coincident", 10, 2, 11, 1),
    Sketcher.Constraint("Coincident", 11, 2, 12, 1),
    Sketcher.Constraint("Coincident", 12, 2, 13, 1),
    Sketcher.Constraint("Coincident", 13, 2, 14, 1),
    Sketcher.Constraint("Coincident", 14, 2, 15, 1),
    Sketcher.Constraint("Coincident", 15, 2, 16, 1),
    Sketcher.Constraint("Coincident", 16, 2, 17, 1),
    Sketcher.Constraint("Coincident", 17, 2, 18, 1),
    Sketcher.Constraint("Coincident", 18, 2, 19, 2),
    Sketcher.Constraint("Coincident", 19, 1, 20, 1),
    Sketcher.Constraint("Coincident", 20, 2, 21, 2),
    Sketcher.Constraint("Coincident", 21, 1, 22, 1),
    Sketcher.Constraint("Coincident", 22, 2, 23, 1),
    Sketcher.Constraint("Coincident", 23, 2, 24, 1),
    Sketcher.Constraint("Coincident", 24, 2, 0, 1),
    Sketcher.Constraint("Horizontal", 14),
    Sketcher.Constraint("Vertical", 16),
    Sketcher.Constraint("Horizontal", 18),
    Sketcher.Constraint("Horizontal", 20),
    Sketcher.Constraint("Coincident", 21, 3, 17, 3),
    Sketcher.Constraint("Radius", 15, Q("0.5 in")),
    Sketcher.Constraint("Radius", 17, Q("0.5 in")),
    Sketcher.Constraint("DistanceX", 14, 2, 14, 1, Q("1 in")),
    Sketcher.Constraint("DistanceX", 18, 1, 18, 2, Q("1.0000001 in")),
    Sketcher.Constraint("DistanceX", 20, 2, 20, 1, Q("1.0000001 in")),
    Sketcher.Constraint("Radius", 21, Q("1.25 in")),
    Sketcher.Constraint("DistanceY", -1, 1, 15, 3, Q("3 in")),
    Sketcher.Constraint("DistanceY", -1, 1, 8, 2, Q("5 in")),
    Sketcher.Constraint("DistanceY", -1, 1, 15, 2, Q("3 in")),
    Sketcher.Constraint("DistanceX", 17, 3, 19, 3, Q("1.0000001 in")),
    Sketcher.Constraint("DistanceX", 15, 3, 13, 2, Q("1.0000001 in")),
    Sketcher.Constraint("DistanceX", 21, 3, 18, 2, Q("1.0000001 in")),
    Sketcher.Constraint("DistanceX", 17, 2, 19, 1, Q("1.0000001 in")),
    Sketcher.Constraint("Distance", 0, Q("0.5 in")),
    Sketcher.Constraint("Distance", 2, Q("0.5 in")),
    Sketcher.Constraint("Distance", 4, Q("0.5 in")),
    Sketcher.Constraint("Distance", 6, Q("0.5 in")),
    Sketcher.Constraint("Distance", 8, Q("0.5 in")),
    Sketcher.Constraint("Distance", 10, Q("0.5 in")),
    Sketcher.Constraint("Distance", 12, Q("0.5 in")),
    Sketcher.Constraint("DistanceY", 16, 2, 16, 1, Q("0.25 in")),
    Sketcher.Constraint("DistanceY", -1, 1, 19, 1, Q("1.5 in")),
    Sketcher.Constraint("Radius", 22, 69.580693),
    Sketcher.Constraint("DistanceX", -1, 1, 11, 2, 49.5906),
    Sketcher.Constraint("DistanceY", -1, 1, 21, 1, 48.892399),
    Sketcher.Constraint("DistanceX", 2, 2, 3, 2, 29.59),
    Sketcher.Constraint("DistanceX", 6, 2, 5, 2, 2.826201),
    Sketcher.Constraint("DistanceY", 3, 2, 6, 2, 20.835299),
    Sketcher.Constraint("DistanceX", 3, 2, 7, 2, 49.5922),
    Sketcher.Constraint("DistanceX", 5, 2, 10, 2, 53.693499),
    Sketcher.Constraint("DistanceX", 1, 2, 22, 2, 25.871298),
    Sketcher.Constraint("DistanceY", 22, 2, 4, 2, 43.6125),
    Sketcher.Constraint("DistanceX", -1, 1, 15, 3, 46.162632),
    Sketcher.Constraint("DistanceY", -1, 1, 22, 3, 2.96344),
    Sketcher.Constraint("DistanceX", 0, 2, -1, 1, 99.293191),
    Sketcher.Constraint("DistanceY", -1, 1, 2, 2, 99.291809),
    Sketcher.Constraint("DistanceX", 4, 2, -1, 1, 55.104661),
    Sketcher.Constraint("DistanceY", -1, 1, 4, 2, 114.422359),
    Sketcher.Constraint("DistanceX", 5, 2, -1, 1, 25.43581),
    Sketcher.Constraint("DistanceY", -1, 1, 5, 2, 111.43388),
    Sketcher.Constraint("DistanceX", -1, 1, 9, 2, 25.43192),
    Sketcher.Constraint("DistanceY", -1, 1, 10, 2, 123.816409),
    Sketcher.Constraint("DistanceX", 23, 2, -1, 1, 114.423321),
    Sketcher.Constraint("DistanceX", 24, 2, -1, 1, 89.363872),
    Sketcher.Constraint("DistanceY", 22, 3, 0, 2, 76.219022),
    Sketcher.Constraint("DistanceX", 8, 2, 7, 2, 0.000222),
    Sketcher.Constraint("DistanceY", 11, 2, 12, 2, 11.442428),
    Sketcher.Constraint("DistanceY", 23, 2, 3, 2, 47.877459),
    Sketcher.Constraint("Distance", 11, 29.818983),
])
sketch3.setExpression("Constraints[30]", "Params.sketch3_radius")
sketch3.setExpression("Constraints[31]", "Params.sketch3_radius2")
sketch3.setExpression("Constraints[32]", "Params.sketch3_width")
sketch3.setExpression("Constraints[33]", "Params.sketch3_width2")
sketch3.setExpression("Constraints[34]", "Params.sketch3_width3")
pad3 = doc.addObject("PartDesign::Pad", "Pad002")
body3.addObject(pad3)
pad3.Profile = sketch3
pad3.setExpression("Length", "Params.pad3_length")
pad3.Reversed = True
body.AllowCompound = True
doc.recompute()

boolean = doc.addObject("PartDesign::Boolean", "Boolean")
body.addObject(boolean)
boolean.Type = "Fuse"
boolean.addObjects([body2])
doc.recompute()

boolean2 = doc.addObject("PartDesign::Boolean", "Boolean001")
body.addObject(boolean2)
boolean2.Type = "Fuse"
boolean2.addObjects([body3])

# Sketch on YZ plane
sketch4 = doc.addObject("Sketcher::SketchObject", "Sketch003")
body.addObject(sketch4)
sketch4.AttachmentSupport = (doc.YZ_Plane, [""])
sketch4.MapMode = "FlatFace"
add_polygon(sketch4, [(46.2, 49.2), (46.2, 46), (71.6, 46), (71.6, 49.2)])  # lines 0-3
sketch4.addConstraint([
    Sketcher.Constraint("Vertical", 0),
    Sketcher.Constraint("Horizontal", 1),
    Sketcher.Constraint("Vertical", 2),
    Sketcher.Constraint("Horizontal", 3),
    Sketcher.Constraint("DistanceX", 1, 1, 1, 2, Q("1 in")),
    Sketcher.Constraint("DistanceY", 0, 2, 0, 1, Q("0.125 in")),
    Sketcher.Constraint("DistanceY", -1, 1, 0, 2, Q("1.8125 in")),
    Sketcher.Constraint("DistanceX", -1, 1, 0, 2, 46.162634),
])
sketch4.setExpression("Constraints[8]", "Params.sketch4_width")
sketch4.setExpression("Constraints[9]", "Params.sketch4_height")
pad4 = doc.addObject("PartDesign::Pad", "Pad003")
body.addObject(pad4)
pad4.Profile = sketch4
pad4.Type = "TwoLengths"
pad4.setExpression("Length", "Params.pad4_length")
pad4.setExpression("Length2", "Params.pad4_length2")

doc.recompute()
